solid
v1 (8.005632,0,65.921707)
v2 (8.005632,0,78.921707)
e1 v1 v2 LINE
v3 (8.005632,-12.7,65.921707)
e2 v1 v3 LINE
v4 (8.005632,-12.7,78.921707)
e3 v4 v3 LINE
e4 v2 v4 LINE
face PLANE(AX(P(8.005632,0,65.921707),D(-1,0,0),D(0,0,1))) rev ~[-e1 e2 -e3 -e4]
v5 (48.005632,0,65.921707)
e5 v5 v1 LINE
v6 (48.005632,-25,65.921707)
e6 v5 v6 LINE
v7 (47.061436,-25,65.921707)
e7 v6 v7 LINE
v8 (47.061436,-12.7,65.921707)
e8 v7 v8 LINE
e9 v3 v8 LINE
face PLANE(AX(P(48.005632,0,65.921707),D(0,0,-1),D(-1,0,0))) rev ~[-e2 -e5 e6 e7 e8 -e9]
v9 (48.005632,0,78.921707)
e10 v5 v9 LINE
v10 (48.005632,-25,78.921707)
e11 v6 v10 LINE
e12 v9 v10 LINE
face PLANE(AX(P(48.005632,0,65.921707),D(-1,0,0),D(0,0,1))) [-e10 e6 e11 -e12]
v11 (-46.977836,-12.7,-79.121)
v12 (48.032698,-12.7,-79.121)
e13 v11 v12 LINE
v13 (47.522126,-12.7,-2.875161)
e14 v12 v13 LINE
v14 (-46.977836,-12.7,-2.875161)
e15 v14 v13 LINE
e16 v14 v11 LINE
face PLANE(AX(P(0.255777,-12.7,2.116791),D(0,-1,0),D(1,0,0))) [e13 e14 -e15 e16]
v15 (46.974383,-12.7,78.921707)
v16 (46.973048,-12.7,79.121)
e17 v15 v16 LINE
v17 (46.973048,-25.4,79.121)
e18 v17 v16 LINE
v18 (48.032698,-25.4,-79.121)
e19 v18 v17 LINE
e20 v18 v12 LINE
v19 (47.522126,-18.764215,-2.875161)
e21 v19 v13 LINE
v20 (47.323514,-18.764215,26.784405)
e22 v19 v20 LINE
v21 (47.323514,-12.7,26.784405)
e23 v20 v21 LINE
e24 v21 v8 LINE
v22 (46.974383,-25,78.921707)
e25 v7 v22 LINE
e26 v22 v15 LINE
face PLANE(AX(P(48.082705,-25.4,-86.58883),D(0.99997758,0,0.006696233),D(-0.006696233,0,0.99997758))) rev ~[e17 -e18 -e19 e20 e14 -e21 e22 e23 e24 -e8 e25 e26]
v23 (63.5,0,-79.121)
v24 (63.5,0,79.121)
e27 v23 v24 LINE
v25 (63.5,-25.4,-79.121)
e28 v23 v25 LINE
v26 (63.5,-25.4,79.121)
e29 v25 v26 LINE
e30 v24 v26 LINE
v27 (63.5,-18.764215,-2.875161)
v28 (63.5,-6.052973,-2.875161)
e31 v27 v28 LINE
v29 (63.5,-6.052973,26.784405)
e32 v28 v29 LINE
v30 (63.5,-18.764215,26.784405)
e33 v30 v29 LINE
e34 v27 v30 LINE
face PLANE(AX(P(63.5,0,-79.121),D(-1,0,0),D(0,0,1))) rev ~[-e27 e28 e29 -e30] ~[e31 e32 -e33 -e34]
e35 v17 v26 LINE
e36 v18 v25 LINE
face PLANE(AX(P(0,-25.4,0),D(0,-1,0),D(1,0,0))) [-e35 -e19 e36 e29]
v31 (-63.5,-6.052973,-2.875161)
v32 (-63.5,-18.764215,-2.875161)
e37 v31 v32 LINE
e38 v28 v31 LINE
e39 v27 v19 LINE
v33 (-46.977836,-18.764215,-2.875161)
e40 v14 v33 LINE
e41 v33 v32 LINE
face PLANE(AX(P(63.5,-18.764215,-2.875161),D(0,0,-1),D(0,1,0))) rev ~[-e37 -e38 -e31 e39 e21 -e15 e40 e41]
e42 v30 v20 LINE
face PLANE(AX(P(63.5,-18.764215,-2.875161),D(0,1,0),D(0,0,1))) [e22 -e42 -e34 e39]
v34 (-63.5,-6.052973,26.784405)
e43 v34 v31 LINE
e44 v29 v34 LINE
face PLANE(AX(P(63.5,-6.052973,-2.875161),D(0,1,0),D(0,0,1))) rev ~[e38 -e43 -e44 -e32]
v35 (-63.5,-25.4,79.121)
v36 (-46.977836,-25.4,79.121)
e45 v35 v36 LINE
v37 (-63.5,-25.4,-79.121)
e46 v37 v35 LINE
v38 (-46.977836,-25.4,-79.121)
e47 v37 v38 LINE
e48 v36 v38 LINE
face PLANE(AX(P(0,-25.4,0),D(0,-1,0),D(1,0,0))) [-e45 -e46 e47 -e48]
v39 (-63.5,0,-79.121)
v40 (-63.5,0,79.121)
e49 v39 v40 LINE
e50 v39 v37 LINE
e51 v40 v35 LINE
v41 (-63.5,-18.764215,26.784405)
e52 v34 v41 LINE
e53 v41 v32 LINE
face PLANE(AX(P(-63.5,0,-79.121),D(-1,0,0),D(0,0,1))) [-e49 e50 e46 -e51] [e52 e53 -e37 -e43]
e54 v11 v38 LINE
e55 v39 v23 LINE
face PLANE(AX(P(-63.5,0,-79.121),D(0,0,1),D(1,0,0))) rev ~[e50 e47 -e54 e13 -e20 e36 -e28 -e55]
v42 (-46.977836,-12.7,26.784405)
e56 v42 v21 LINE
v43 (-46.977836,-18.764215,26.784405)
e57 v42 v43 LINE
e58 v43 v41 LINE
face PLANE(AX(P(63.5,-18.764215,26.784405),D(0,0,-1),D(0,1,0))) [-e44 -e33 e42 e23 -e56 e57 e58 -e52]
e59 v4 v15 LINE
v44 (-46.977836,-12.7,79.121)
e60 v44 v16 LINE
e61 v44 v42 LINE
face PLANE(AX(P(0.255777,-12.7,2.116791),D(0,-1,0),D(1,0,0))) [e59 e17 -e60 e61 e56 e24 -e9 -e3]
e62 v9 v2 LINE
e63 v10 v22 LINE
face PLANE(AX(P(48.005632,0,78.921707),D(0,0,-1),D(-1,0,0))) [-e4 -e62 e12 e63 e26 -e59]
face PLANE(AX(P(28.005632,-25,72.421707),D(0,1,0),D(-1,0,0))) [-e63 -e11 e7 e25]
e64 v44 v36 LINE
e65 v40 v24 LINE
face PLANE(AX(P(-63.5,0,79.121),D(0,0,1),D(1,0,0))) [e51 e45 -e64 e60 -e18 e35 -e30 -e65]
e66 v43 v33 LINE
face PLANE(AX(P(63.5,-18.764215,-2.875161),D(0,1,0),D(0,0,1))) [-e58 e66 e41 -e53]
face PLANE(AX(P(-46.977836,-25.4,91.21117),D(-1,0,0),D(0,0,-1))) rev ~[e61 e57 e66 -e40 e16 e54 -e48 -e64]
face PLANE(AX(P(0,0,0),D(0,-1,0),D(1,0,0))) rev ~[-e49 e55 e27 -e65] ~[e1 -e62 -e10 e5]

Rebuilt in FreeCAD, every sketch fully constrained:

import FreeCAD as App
import Part
import Sketcher
Q = App.Units.Quantity


def add_polygon(sketch, points):
    """Adds a closed chain of lines whose ends are joined by coincident constraints."""
    first, n = sketch.GeometryCount, len(points)
    for a, b in zip(points, points[1:] + points[:1]):
        sketch.addGeometry(Part.LineSegment(App.Vector(*a, 0), App.Vector(*b, 0)), False)
    for i in range(n):
        sketch.addConstraint(Sketcher.Constraint("Coincident", first + i, 2, first + (i + 1) % n, 1))

doc = App.newDocument("Part")
params = doc.addObject("Spreadsheet::Sheet", "Params")
for row, (alias, value) in enumerate([
    ("sketch1_width", "5 in"),
    ("sketch1_height", "6.23 in"),
    ("pad1_length", "1 in"),
    ("sketch2_height", "7 in"),
    ("pocket1_length", "0.5 in"),
    ("pocket2_length", "25 mm"),
    ("pocket3_length", "6 in"),
], start=1):
    params.set(f"A{row}", alias)
    params.set(f"B{row}", "=" + value)
    params.setAlias(f"B{row}", alias)

body = doc.addObject("PartDesign::Body", "Body")

# Sketch on XZ plane
sketch1 = body.newObject("Sketcher::SketchObject", "Sketch")
sketch1.AttachmentSupport = (doc.getObject("XZ_Plane"), [""])
sketch1.MapMode = "FlatFace"
add_polygon(sketch1, [(-63.5, 79.121), (-63.5, -79.121), (63.5, -79.121), (63.5, 79.121)])  # lines 0-3
sketch1.addConstraint([
    Sketcher.Constraint("Vertical", 0),
    Sketcher.Constraint("Horizontal", 1),
    Sketcher.Constraint("Vertical", 2),
    Sketcher.Constraint("Horizontal", 3),
    Sketcher.Constraint("Symmetric", 0, 2, 2, 2, -1, 1),
    Sketcher.Constraint("DistanceX", 1, 1, 1, 2, Q("5 in")),
    Sketcher.Constraint("DistanceY", 0, 2, 0, 1, Q("6.23 in")),
])
sketch1.setExpression("Constraints[9]", "Params.sketch1_width")
sketch1.setExpression("Constraints[10]", "Params.sketch1_height")
pad1 = body.newObject("PartDesign::Pad", "Pad")
pad1.Profile = sketch1
pad1.setExpression("Length", "Params.pad1_length")

# Sketch on XZ plane
sketch2 = body.newObject("Sketcher::SketchObject", "Sketch001")
sketch2.AttachmentSupport = (doc.getObject("XZ_Plane"), [""])
sketch2.MapMode = "FlatFace"
sketch2.AttachmentOffset = App.Placement(App.Vector(0, 0, 1 * 25.4), App.Rotation())
add_polygon(sketch2, [(48.082705, -86.58883), (46.892088, 91.21117), (-46.977836, 91.21117), (-46.977836, -86.58883)])  # lines 0-3
sketch2.addConstraint([
    Sketcher.Constraint("Horizontal", 1),
    Sketcher.Constraint("Vertical", 2),
    Sketcher.Constraint("Horizontal", 3),
    Sketcher.Constraint("DistanceY", 2, 2, 2, 1, Q("7 in")),
    Sketcher.Constraint("DistanceX", 3, 1, 3, 2, Q("95.060541 mm")),
    Sketcher.Constraint("DistanceX", 1, 2, 1, 1, Q("93.869924 mm")),
    Sketcher.Constraint("DistanceY", -1, 1, 0, 2, Q("91.21117 mm")),
    Sketcher.Constraint("DistanceX", -1, 1, 0, 2, Q("46.892088 mm")),
])
sketch2.setExpression("Constraints[7]", "Params.sketch2_height")
pocket1 = body.newObject("PartDesign::Pocket", "Pocket")
pocket1.Profile = sketch2
pocket1.setExpression("Length", "Params.pocket1_length")

# Sketch on XZ plane
sketch3 = body.newObject("Sketcher::SketchObject", "Sketch002")
sketch3.AttachmentSupport = (doc.getObject("XZ_Plane"), [""])
sketch3.MapMode = "FlatFace"
add_polygon(sketch3, [(48.005632, 78.921707), (48.005632, 65.921707), (8.005632, 65.921707), (8.005632, 78.921707)])  # lines 0-3
sketch3.addConstraint([
    Sketcher.Constraint("Vertical", 0),
    Sketcher.Constraint("Horizontal", 1),
    Sketcher.Constraint("Vertical", 2),
    Sketcher.Constraint("Horizontal", 3),
    Sketcher.Constraint("DistanceX", 1, 2, 1, 1, Q("40 mm")),
    Sketcher.Constraint("DistanceY", 0, 2, 0, 1, Q("13 mm")),
    Sketcher.Constraint("DistanceX", -1, 1, 0, 2, Q("48.005632 mm")),
    Sketcher.Constraint("DistanceY", -1, 1, 0, 2, Q("65.921707 mm")),
])
pocket2 = body.newObject("PartDesign::Pocket", "Pocket001")
pocket2.Profile = sketch3
pocket2.setExpression("Length", "Params.pocket2_length")
pocket2.Reversed = True

# Sketch on YZ plane
sketch4 = body.newObject("Sketcher::SketchObject", "Sketch003")
sketch4.AttachmentSupport = (doc.getObject("YZ_Plane"), [""])
sketch4.MapMode = "FlatFace"
sketch4.AttachmentOffset = App.Placement(App.Vector(0, 0, 2.5 * 25.4), App.Rotation())
add_polygon(sketch4, [(-18.764215, 26.784405), (-18.764215, -2.875161), (-6.052973, -2.875161), (-6.052973, 26.784405)])  # lines 0-3
sketch4.addConstraint([
    Sketcher.Constraint("Vertical", 0),
    Sketcher.Constraint("Horizontal", 1),
    Sketcher.Constraint("Vertical", 2),
    Sketcher.Constraint("Horizontal", 3),
    Sketcher.Constraint("DistanceX", 1, 1, 1, 2, Q("12.711242 mm")),
    Sketcher.Constraint("DistanceY", 0, 2, 0, 1, Q("29.659567 mm")),
    Sketcher.Constraint("DistanceY", 0, 2, -1, 1, Q("2.875161 mm")),
    Sketcher.Constraint("DistanceX", 0, 2, -1, 1, Q("18.764215 mm")),
])
pocket3 = body.newObject("PartDesign::Pocket", "Pocket002")
pocket3.Profile = sketch4
pocket3.setExpression("Length", "Params.pocket3_length")

doc.recompute()
